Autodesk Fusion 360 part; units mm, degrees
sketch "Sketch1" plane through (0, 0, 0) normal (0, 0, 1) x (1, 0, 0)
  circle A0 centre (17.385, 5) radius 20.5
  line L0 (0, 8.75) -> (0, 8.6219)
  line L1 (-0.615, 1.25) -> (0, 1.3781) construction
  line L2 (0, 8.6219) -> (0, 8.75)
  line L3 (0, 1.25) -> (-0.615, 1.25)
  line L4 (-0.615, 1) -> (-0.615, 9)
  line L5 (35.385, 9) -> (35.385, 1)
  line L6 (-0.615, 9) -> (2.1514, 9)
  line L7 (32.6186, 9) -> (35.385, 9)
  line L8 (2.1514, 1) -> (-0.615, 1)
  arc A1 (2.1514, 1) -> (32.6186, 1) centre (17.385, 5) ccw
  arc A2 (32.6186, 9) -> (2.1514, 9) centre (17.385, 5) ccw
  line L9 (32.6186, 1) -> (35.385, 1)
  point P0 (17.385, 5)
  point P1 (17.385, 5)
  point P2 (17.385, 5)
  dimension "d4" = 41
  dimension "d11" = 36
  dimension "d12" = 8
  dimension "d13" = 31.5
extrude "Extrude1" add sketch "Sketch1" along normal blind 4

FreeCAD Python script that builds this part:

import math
import FreeCAD as App
import Part
import Sketcher
from FreeCAD import Vector
Q = App.Units.Quantity

doc = App.newDocument("Part")
body = doc.addObject("PartDesign::Body", "Body")

# Sketch on XY plane
sketch1 = doc.addObject("Sketcher::SketchObject", "Sketch")
body.addObject(sketch1)
sketch1.AttachmentSupport = (doc.XY_Plane, [""])
sketch1.MapMode = "FlatFace"
sketch1.addGeometry([
    Part.Circle(Vector(17.4, 5, 0), Vector(0, 0, 1), 20.5),  # 0
    Part.LineSegment(Vector(2.2, 1, 0), Vector(-0.6, 1, 0)),  # 1
    Part.LineSegment(Vector(-0.6, 1, 0), Vector(-0.6, 9, 0)),  # 2
    Part.LineSegment(Vector(-0.6, 9, 0), Vector(2.2, 9, 0)),  # 3
    Part.ArcOfCircle(Part.Circle(Vector(17.4, 5, 0), Vector(0, 0, 1), 15.8), math.radians(15), math.radians(165)),  # 4
    Part.LineSegment(Vector(32.6, 9, 0), Vector(35.4, 9, 0)),  # 5
    Part.LineSegment(Vector(35.4, 9, 0), Vector(35.4, 1, 0)),  # 6
    Part.LineSegment(Vector(35.4, 1, 0), Vector(32.6, 1, 0)),  # 7
    Part.ArcOfCircle(Part.Circle(Vector(17.4, 5, 0), Vector(0, 0, 1), 15.8), math.radians(-165), math.radians(-15)),  # 8
], False)
sketch1.addConstraint([
    Sketcher.Constraint("Coincident", 1, 2, 2, 1),
    Sketcher.Constraint("Coincident", 2, 2, 3, 1),
    Sketcher.Constraint("Coincident", 3, 2, 4, 2),
    Sketcher.Constraint("Coincident", 4, 1, 5, 1),
    Sketcher.Constraint("Coincident", 5, 2, 6, 1),
    Sketcher.Constraint("Coincident", 6, 2, 7, 1),
    Sketcher.Constraint("Coincident", 7, 2, 8, 2),
    Sketcher.Constraint("Coincident", 8, 1, 1, 1),
    Sketcher.Constraint("Horizontal", 1),
    Sketcher.Constraint("Vertical", 2),
    Sketcher.Constraint("Horizontal", 3),
    Sketcher.Constraint("Horizontal", 5),
    Sketcher.Constraint("Vertical", 6),
    Sketcher.Constraint("Horizontal", 7),
    Sketcher.Constraint("Coincident", 4, 3, 0, 3),
    Sketcher.Constraint("Coincident", 8, 3, 0, 3),
    Sketcher.Constraint("Equal", 4, 8),
    Sketcher.Constraint("Horizontal", 3, 2, 4, 1),
    Sketcher.Constraint("Horizontal", 1, 2, 6, 2),
    Sketcher.Constraint("Vertical", 4, 1, 7, 2),
    Sketcher.Constraint("Equal", 3, 5),
    Sketcher.Constraint("Diameter", 0, Q("41 mm")),
    Sketcher.Constraint("DistanceY", 2, 1, 2, 2, Q("8 mm")),
    Sketcher.Constraint("Radius", 4, Q("15.75 mm")),
    Sketcher.Constraint("DistanceY", -1, 1, 0, 3, Q("5 mm")),
    Sketcher.Constraint("DistanceX", 1, 2, 0, 3, Q("18 mm")),
    Sketcher.Constraint("DistanceX", -1, 1, 0, 3, Q("17.385 mm")),
])
pad1 = doc.addObject("PartDesign::Pad", "Pad")
body.addObject(pad1)
pad1.Profile = sketch1
pad1.Length = 4

doc.recompute()
